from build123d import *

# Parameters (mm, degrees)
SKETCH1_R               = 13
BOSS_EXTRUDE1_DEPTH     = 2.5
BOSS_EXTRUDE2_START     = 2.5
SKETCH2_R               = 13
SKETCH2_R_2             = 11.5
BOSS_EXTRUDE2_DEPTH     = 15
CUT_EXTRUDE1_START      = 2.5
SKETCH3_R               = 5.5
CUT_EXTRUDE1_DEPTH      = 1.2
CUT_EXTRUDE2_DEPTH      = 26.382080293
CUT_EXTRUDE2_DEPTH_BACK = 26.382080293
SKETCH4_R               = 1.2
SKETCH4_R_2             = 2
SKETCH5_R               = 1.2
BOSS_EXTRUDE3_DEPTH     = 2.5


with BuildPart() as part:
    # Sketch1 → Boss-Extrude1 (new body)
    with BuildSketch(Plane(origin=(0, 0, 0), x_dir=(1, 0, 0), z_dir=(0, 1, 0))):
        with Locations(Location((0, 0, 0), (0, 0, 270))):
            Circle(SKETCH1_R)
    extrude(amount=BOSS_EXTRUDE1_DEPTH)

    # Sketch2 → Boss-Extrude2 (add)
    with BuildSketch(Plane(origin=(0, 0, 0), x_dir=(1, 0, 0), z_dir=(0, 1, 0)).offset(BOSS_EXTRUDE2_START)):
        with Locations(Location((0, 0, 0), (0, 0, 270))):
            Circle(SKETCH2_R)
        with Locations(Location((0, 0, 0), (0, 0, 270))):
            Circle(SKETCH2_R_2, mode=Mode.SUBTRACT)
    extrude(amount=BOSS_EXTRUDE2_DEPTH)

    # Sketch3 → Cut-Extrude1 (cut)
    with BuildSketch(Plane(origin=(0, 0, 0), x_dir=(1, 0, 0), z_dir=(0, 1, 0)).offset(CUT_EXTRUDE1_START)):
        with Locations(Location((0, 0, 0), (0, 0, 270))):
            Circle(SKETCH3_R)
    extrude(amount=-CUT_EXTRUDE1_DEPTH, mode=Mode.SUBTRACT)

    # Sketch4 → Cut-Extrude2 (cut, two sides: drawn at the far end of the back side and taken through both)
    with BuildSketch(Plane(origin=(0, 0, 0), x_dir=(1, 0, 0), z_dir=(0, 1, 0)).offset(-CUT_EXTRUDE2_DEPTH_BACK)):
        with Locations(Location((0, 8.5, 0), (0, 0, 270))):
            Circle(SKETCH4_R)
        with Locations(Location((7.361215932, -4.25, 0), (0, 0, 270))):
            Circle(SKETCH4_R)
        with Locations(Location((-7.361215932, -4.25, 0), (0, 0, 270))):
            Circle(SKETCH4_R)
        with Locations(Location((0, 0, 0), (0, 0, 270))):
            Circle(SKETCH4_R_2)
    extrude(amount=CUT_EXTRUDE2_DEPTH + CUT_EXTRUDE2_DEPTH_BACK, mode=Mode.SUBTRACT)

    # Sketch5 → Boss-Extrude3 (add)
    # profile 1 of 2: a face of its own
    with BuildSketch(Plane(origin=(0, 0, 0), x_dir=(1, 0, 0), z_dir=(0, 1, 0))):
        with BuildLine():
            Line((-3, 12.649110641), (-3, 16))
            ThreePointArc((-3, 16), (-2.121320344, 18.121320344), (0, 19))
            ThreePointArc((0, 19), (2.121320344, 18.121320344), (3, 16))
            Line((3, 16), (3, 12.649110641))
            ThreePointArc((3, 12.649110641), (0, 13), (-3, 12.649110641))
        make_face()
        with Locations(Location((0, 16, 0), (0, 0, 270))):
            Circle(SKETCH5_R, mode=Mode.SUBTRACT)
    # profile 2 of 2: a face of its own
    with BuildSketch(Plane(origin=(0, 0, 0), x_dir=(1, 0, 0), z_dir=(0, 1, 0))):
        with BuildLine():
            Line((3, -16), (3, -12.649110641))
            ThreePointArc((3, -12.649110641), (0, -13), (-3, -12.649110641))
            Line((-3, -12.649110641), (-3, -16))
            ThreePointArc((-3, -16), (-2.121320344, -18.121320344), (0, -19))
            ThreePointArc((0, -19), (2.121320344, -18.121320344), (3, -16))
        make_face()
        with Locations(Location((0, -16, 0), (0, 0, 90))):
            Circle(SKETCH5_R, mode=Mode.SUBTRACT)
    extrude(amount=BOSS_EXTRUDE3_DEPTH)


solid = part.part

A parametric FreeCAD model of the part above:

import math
import FreeCAD as App
import Part
import Sketcher
from FreeCAD import Vector

doc = App.newDocument("Part")
body = doc.addObject("PartDesign::Body", "Body")

# Sketch on XZ plane
sketch1 = body.newObject("Sketcher::SketchObject", "Sketch")
sketch1.AttachmentSupport = (doc.getObject("XZ_Plane"), [""])
sketch1.MapMode = "FlatFace"
sketch1.addGeometry(Part.Circle(Vector(0, 0, 0), Vector(0, 0, 1), 13), False)
sketch1.addConstraint([
    Sketcher.Constraint("Coincident", 0, 3, -1, 1),
    Sketcher.Constraint("Diameter", 0, 26.0),
])
pad1 = body.newObject("PartDesign::Pad", "Pad")
pad1.Profile = sketch1
pad1.Length = 2.5
pad1.Reversed = True

# Sketch on XZ plane
sketch2 = body.newObject("Sketcher::SketchObject", "Sketch001")
sketch2.AttachmentSupport = (doc.getObject("XZ_Plane"), [""])
sketch2.MapMode = "FlatFace"
sketch2.AttachmentOffset = App.Placement(Vector(0, 0, -2.5), App.Rotation())
sketch2.addGeometry([
    Part.Circle(Vector(0, 0, 0), Vector(0, 0, 1), 13),
    Part.Circle(Vector(0, 0, 0), Vector(0, 0, 1), 12),
], False)
sketch2.addConstraint([
    Sketcher.Constraint("Coincident", 0, 3, -1, 1),
    Sketcher.Constraint("Coincident", 1, 3, -1, 1),
    Sketcher.Constraint("Diameter", 0, 26.0),
    Sketcher.Constraint("Diameter", 1, 23.0),
])
pad2 = body.newObject("PartDesign::Pad", "Pad001")
pad2.Profile = sketch2
pad2.Length = 15
pad2.Reversed = True

# Sketch on XZ plane
sketch3 = body.newObject("Sketcher::SketchObject", "Sketch002")
sketch3.AttachmentSupport = (doc.getObject("XZ_Plane"), [""])
sketch3.MapMode = "FlatFace"
sketch3.AttachmentOffset = App.Placement(Vector(0, 0, -2.5), App.Rotation())
sketch3.addGeometry(Part.Circle(Vector(0, 0, 0), Vector(0, 0, 1), 6), False)
sketch3.addConstraint([
    Sketcher.Constraint("Coincident", 0, 3, -1, 1),
    Sketcher.Constraint("Diameter", 0, 11.0),
])
pocket1 = body.newObject("PartDesign::Pocket", "Pocket")
pocket1.Profile = sketch3
pocket1.Length = 1.2
pocket1.Reversed = True

# Sketch on XZ plane
sketch4 = body.newObject("Sketcher::SketchObject", "Sketch003")
sketch4.AttachmentSupport = (doc.getObject("XZ_Plane"), [""])
sketch4.MapMode = "FlatFace"
sketch4.addGeometry([
    Part.Circle(Vector(0, -8.5, 0), Vector(0, 0, 1), 1.2),
    Part.Circle(Vector(7.4, 4.2, 0), Vector(0, 0, 1), 1.2),
    Part.Circle(Vector(-7.4, 4.2, 0), Vector(0, 0, 1), 1.2),
    Part.Circle(Vector(0, 0, 0), Vector(0, 0, 1), 2),
], False)
sketch4.addConstraint([
    Sketcher.Constraint("Coincident", 3, 3, -1, 1),
    Sketcher.Constraint("Equal", 0, 1),
    Sketcher.Constraint("Equal", 1, 2),
    Sketcher.Constraint("Symmetric", 1, 3, 2, 3, -2),
    Sketcher.Constraint("PointOnObject", 0, 3, -2),
    Sketcher.Constraint("Diameter", 3, 4.0),
    Sketcher.Constraint("Diameter", 0, 2.4),
    Sketcher.Constraint("DistanceY", 0, 3, -1, 1, 8.5),
    Sketcher.Constraint("DistanceY", -1, 1, 1, 3, 4.25),
    Sketcher.Constraint("DistanceX", 2, 3, 1, 3, 14.722432),
])
pocket2 = body.newObject("PartDesign::Pocket", "Pocket001")
pocket2.Profile = sketch4
pocket2.Type = "ThroughAll"
pocket2.Midplane = True

# Sketch on XZ plane
sketch5 = body.newObject("Sketcher::SketchObject", "Sketch004")
sketch5.AttachmentSupport = (doc.getObject("XZ_Plane"), [""])
sketch5.MapMode = "FlatFace"
sketch5.addGeometry([
    Part.LineSegment(Vector(-3, -16, 0), Vector(-3, -12.6, 0)),  # 0
    Part.ArcOfCircle(Part.Circle(Vector(0, 0, 0), Vector(0, 0, 1), 13), math.radians(-103), math.radians(-77)),  # 1
    Part.LineSegment(Vector(3, -12.6, 0), Vector(3, -16, 0)),  # 2
    Part.ArcOfCircle(Part.Circle(Vector(0, -16, 0), Vector(0, 0, 1), 3), math.radians(-90), math.radians(0)),  # 3
    Part.ArcOfCircle(Part.Circle(Vector(0, -16, 0), Vector(0, 0, 1), 3), math.radians(180), math.radians(270)),  # 4
    Part.Circle(Vector(0, -16, 0), Vector(0, 0, 1), 1.2),  # 5
    Part.LineSegment(Vector(3, 16, 0), Vector(3, 12.6, 0)),  # 6
    Part.ArcOfCircle(Part.Circle(Vector(0, 0, 0), Vector(0, 0, 1), 13), math.radians(77), math.radians(103)),  # 7
    Part.LineSegment(Vector(-3, 12.6, 0), Vector(-3, 16, 0)),  # 8
    Part.ArcOfCircle(Part.Circle(Vector(0, 16, 0), Vector(0, 0, 1), 3), math.radians(90), math.radians(180)),  # 9
    Part.ArcOfCircle(Part.Circle(Vector(0, 16, 0), Vector(0, 0, 1), 3), math.radians(0), math.radians(90)),  # 10
    Part.Circle(Vector(0, 16, 0), Vector(0, 0, 1), 1.2),  # 11
], False)
sketch5.addConstraint([
    Sketcher.Constraint("Coincident", 0, 2, 1, 1),
    Sketcher.Constraint("Coincident", 1, 2, 2, 1),
    Sketcher.Constraint("Tangent", 2, 2, 3, 2),
    Sketcher.Constraint("Tangent", 3, 1, 4, 2),
    Sketcher.Constraint("Tangent", 4, 1, 0, 1),
    Sketcher.Constraint("Coincident", 6, 2, 7, 1),
    Sketcher.Constraint("Coincident", 7, 2, 8, 1),
    Sketcher.Constraint("Tangent", 8, 2, 9, 2),
    Sketcher.Constraint("Tangent", 9, 1, 10, 2),
    Sketcher.Constraint("Tangent", 10, 1, 6, 1),
    Sketcher.Constraint("Vertical", 0),
    Sketcher.Constraint("Vertical", 2),
    Sketcher.Constraint("Vertical", 6),
    Sketcher.Constraint("Vertical", 8),
    Sketcher.Constraint("Coincident", 1, 3, -1, 1),
    Sketcher.Constraint("Coincident", 7, 3, -1, 1),
    Sketcher.Constraint("Coincident", 5, 3, 3, 3),
    Sketcher.Constraint("Coincident", 11, 3, 9, 3),
    Sketcher.Constraint("Equal", 3, 4),
    Sketcher.Constraint("Equal", 1, 7),
    Sketcher.Constraint("Equal", 4, 9),
    Sketcher.Constraint("Equal", 9, 10),
    Sketcher.Constraint("Equal", 5, 11),
    Sketcher.Constraint("Symmetric", 3, 3, 9, 3, -1, 1),
    Sketcher.Constraint("PointOnObject", 3, 3, -2),
    Sketcher.Constraint("PointOnObject", 3, 1, -2),
    Sketcher.Constraint("PointOnObject", 9, 1, -2),
    Sketcher.Constraint("Radius", 1, 13.0),
    Sketcher.Constraint("Radius", 3, 3.0),
    Sketcher.Constraint("Diameter", 5, 2.4),
    Sketcher.Constraint("DistanceY", 3, 3, -1, 1, 16.0),
])
pad3 = body.newObject("PartDesign::Pad", "Pad002")
pad3.Profile = sketch5
pad3.Length = 2.5
pad3.Reversed = True

doc.recompute()
